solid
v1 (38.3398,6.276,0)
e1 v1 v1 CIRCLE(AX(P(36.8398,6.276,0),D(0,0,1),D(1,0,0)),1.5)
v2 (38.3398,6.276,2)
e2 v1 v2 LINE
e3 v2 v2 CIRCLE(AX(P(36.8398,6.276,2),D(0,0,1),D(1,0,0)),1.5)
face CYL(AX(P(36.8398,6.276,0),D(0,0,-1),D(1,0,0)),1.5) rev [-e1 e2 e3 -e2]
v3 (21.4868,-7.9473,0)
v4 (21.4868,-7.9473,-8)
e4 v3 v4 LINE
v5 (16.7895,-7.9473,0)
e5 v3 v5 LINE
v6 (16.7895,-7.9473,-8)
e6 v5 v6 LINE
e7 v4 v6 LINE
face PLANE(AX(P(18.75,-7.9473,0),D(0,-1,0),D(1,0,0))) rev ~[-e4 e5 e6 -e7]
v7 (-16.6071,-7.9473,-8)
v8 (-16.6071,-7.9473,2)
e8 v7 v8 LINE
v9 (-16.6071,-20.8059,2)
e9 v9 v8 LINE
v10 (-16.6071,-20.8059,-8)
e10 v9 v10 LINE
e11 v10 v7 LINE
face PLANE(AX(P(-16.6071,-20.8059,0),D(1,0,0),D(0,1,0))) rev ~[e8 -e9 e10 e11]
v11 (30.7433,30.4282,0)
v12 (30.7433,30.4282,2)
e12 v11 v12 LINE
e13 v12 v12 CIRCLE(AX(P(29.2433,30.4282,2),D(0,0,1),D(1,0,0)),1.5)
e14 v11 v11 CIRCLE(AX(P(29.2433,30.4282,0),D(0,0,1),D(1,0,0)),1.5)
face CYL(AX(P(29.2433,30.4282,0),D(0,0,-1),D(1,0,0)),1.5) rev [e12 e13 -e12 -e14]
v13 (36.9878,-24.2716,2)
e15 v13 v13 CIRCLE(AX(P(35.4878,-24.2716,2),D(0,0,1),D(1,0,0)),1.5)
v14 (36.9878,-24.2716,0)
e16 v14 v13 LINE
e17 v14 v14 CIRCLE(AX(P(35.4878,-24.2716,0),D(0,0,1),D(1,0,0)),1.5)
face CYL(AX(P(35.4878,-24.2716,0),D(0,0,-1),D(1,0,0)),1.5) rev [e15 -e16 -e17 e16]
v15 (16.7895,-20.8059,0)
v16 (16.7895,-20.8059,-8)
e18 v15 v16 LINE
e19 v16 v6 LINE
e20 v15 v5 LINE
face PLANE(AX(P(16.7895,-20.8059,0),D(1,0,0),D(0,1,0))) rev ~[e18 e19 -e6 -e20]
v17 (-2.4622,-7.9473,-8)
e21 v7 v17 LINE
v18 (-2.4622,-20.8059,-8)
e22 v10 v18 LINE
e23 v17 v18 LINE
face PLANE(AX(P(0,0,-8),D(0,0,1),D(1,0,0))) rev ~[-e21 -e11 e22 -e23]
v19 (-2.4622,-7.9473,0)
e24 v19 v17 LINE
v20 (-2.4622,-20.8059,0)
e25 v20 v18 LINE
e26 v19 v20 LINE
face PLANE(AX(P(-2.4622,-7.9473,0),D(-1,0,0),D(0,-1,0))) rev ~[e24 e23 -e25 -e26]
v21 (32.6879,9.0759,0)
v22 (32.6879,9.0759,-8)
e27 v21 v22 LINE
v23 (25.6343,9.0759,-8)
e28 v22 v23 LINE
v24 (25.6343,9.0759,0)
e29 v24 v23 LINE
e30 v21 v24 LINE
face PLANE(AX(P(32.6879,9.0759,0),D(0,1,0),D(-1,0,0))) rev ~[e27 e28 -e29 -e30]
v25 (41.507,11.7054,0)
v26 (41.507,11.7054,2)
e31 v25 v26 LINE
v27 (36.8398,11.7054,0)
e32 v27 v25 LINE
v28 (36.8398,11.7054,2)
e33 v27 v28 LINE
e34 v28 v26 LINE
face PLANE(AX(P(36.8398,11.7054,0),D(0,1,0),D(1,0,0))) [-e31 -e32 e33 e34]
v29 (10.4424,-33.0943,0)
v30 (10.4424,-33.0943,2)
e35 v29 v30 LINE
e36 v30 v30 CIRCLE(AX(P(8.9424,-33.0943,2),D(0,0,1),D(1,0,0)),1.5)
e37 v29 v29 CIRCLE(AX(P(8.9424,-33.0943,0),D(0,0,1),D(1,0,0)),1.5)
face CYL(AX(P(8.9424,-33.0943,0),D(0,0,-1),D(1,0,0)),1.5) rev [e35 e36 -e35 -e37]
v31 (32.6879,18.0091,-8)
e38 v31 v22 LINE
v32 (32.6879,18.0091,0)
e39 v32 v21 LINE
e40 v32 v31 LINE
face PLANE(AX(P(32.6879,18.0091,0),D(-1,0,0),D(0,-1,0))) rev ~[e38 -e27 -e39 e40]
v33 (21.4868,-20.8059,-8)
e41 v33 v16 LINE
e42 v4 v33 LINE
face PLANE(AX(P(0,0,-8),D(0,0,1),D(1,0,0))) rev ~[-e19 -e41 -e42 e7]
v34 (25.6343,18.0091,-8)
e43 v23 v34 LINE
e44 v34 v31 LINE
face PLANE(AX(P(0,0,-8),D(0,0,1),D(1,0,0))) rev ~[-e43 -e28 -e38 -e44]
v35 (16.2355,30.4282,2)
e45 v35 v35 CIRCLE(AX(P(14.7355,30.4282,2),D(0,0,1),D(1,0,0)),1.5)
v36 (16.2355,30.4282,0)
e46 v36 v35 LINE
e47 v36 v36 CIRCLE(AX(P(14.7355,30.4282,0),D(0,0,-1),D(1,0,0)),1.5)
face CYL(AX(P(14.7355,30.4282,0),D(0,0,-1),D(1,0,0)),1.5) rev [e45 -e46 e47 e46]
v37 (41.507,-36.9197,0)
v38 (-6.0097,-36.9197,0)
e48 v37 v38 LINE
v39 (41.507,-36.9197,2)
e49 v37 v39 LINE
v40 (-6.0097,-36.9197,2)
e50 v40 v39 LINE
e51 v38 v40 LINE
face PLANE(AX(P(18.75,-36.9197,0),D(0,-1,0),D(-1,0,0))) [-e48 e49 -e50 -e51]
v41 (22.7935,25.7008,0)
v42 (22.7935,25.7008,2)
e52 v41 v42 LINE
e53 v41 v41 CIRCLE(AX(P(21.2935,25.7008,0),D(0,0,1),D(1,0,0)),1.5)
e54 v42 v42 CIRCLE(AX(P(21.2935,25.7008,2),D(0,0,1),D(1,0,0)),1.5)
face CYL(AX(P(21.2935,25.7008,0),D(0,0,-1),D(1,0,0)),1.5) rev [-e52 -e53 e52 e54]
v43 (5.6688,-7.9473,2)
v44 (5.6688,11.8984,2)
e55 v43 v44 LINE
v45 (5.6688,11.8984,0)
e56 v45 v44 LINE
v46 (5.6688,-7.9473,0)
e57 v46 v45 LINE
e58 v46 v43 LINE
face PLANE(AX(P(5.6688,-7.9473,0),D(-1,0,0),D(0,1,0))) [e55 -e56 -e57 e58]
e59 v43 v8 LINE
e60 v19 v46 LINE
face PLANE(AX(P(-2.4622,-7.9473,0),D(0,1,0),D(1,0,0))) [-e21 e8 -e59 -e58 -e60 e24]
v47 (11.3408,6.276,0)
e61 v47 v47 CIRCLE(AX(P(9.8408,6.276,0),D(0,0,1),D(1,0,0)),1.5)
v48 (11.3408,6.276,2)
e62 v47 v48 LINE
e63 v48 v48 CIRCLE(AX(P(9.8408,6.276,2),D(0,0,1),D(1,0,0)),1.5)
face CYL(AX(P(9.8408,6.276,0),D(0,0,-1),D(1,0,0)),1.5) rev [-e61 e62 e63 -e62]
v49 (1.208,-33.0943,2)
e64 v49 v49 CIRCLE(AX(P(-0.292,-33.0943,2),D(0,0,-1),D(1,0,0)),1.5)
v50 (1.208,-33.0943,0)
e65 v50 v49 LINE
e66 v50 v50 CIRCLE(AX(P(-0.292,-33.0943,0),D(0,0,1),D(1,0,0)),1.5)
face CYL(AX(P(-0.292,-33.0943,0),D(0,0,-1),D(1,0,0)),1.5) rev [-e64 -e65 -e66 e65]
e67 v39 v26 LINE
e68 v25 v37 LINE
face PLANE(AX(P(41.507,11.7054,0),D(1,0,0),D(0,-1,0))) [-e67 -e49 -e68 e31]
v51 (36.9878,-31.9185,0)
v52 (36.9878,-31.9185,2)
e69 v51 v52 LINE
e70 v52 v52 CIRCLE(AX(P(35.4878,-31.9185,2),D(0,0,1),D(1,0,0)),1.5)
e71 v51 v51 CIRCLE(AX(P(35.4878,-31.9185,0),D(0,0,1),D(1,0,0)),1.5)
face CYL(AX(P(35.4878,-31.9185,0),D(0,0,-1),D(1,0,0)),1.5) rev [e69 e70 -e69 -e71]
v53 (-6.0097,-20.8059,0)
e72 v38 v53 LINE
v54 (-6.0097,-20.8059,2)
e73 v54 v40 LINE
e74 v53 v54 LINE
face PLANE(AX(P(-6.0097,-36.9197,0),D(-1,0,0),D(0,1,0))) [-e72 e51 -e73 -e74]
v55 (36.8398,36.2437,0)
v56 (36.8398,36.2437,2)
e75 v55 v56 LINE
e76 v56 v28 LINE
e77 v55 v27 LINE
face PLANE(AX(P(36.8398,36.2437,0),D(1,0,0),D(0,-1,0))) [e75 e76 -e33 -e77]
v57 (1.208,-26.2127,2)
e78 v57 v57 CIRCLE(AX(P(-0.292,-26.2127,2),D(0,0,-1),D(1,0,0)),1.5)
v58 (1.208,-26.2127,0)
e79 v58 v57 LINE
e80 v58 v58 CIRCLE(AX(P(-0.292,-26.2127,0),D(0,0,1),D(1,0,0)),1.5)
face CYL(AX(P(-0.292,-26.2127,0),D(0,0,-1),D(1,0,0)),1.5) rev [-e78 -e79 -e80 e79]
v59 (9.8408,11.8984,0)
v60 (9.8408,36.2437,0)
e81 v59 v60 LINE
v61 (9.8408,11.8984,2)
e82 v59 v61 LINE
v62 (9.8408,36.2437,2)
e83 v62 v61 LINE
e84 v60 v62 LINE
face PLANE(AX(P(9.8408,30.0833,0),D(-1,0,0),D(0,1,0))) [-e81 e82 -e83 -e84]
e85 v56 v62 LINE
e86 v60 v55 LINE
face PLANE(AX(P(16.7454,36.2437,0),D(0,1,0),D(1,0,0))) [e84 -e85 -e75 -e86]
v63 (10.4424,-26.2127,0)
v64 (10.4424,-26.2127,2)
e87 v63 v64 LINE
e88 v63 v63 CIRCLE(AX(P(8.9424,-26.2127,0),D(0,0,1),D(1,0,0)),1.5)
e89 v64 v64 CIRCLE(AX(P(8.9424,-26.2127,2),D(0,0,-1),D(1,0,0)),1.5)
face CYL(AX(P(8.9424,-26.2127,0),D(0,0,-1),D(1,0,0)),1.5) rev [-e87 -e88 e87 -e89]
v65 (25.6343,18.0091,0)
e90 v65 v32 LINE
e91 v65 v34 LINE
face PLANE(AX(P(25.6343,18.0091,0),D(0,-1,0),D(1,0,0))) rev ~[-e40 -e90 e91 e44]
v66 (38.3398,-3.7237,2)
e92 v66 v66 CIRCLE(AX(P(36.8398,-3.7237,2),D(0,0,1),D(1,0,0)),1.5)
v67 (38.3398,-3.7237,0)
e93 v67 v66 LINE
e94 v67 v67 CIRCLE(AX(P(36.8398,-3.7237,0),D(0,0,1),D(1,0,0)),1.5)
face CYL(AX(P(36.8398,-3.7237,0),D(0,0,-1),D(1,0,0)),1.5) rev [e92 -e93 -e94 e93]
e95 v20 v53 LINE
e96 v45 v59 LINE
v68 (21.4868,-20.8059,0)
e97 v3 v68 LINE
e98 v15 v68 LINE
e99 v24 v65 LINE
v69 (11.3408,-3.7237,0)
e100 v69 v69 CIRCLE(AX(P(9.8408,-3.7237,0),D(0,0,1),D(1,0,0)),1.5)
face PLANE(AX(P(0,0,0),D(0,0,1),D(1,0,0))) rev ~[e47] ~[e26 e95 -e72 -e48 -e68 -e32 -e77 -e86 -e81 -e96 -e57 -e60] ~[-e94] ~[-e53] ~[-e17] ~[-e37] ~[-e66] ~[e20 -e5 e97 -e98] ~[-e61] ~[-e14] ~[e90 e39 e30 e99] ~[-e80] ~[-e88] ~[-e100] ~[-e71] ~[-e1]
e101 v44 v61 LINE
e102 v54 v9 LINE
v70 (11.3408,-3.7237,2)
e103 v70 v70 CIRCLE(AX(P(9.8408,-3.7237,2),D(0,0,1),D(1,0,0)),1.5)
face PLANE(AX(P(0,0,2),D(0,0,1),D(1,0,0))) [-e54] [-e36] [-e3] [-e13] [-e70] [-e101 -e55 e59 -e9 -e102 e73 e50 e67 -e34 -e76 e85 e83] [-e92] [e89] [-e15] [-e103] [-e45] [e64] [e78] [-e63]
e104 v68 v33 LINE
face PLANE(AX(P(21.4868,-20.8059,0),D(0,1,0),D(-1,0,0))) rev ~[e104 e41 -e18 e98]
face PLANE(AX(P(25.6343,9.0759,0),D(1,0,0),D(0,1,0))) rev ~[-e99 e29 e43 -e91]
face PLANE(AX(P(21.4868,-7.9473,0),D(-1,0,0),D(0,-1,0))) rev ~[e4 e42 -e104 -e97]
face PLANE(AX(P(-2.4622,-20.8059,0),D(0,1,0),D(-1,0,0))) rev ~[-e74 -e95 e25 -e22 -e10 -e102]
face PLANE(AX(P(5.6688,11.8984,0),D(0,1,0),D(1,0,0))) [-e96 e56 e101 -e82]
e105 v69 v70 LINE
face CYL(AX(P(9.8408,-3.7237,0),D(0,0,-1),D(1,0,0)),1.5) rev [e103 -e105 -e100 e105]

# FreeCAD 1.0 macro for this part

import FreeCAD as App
import Part
import Sketcher
Q = App.Units.Quantity


def add_polygon(sketch, points):
    """Adds a closed chain of lines whose ends are joined by coincident constraints."""
    first, n = sketch.GeometryCount, len(points)
    for a, b in zip(points, points[1:] + points[:1]):
        sketch.addGeometry(Part.LineSegment(App.Vector(*a, 0), App.Vector(*b, 0)), False)
    for i in range(n):
        sketch.addConstraint(Sketcher.Constraint("Coincident", first + i, 2, first + (i + 1) % n, 1))

doc = App.newDocument("Part")
body = doc.addObject("PartDesign::Body", "Body")

sketch1 = body.newObject("Sketcher::SketchObject", "Sketch")
sketch1.AttachmentSupport = (doc.getObject("XY_Plane"), [""])
sketch1.MapMode = "FlatFace"
add_polygon(sketch1, [(9.8408, 11.8984), (5.6688, 11.8984), (5.6688, -7.9473), (-16.6071, -7.9473), (-16.6071, -20.8059), (-6.0097, -20.8059), (-6.0097, -36.9197), (41.507, -36.9197), (41.507, 11.7054), (36.8398, 11.7054), (36.8398, 36.2437), (9.8408, 36.2437)])
sketch1.addGeometry(Part.Circle(App.Vector(14.7355, 30.4282, 0), App.Vector(0, 0, 1), 1.5), False)
sketch1.addGeometry(Part.Circle(App.Vector(-0.292, -33.0943, 0), App.Vector(0, 0, 1), 1.5), False)
sketch1.addGeometry(Part.Circle(App.Vector(-0.292, -26.2127, 0), App.Vector(0, 0, 1), 1.5), False)
sketch1.addGeometry(Part.Circle(App.Vector(8.9424, -26.2127, 0), App.Vector(0, 0, 1), 1.5), False)
sketch1.addGeometry(Part.Circle(App.Vector(9.8408, -3.7237, 0), App.Vector(0, 0, 1), 1.5), False)
sketch1.addGeometry(Part.Circle(App.Vector(9.8408, 6.276, 0), App.Vector(0, 0, 1), 1.5), False)
sketch1.addGeometry(Part.Circle(App.Vector(36.8398, 6.276, 0), App.Vector(0, 0, 1), 1.5), False)
sketch1.addGeometry(Part.Circle(App.Vector(29.2433, 30.4282, 0), App.Vector(0, 0, 1), 1.5), False)
sketch1.addGeometry(Part.Circle(App.Vector(35.4878, -31.9185, 0), App.Vector(0, 0, 1), 1.5), False)
sketch1.addGeometry(Part.Circle(App.Vector(35.4878, -24.2716, 0), App.Vector(0, 0, 1), 1.5), False)
sketch1.addGeometry(Part.Circle(App.Vector(36.8398, -3.7237, 0), App.Vector(0, 0, 1), 1.5), False)
sketch1.addGeometry(Part.Circle(App.Vector(21.2935, 25.7008, 0), App.Vector(0, 0, 1), 1.5), False)
sketch1.addGeometry(Part.Circle(App.Vector(8.9424, -33.0943, 0), App.Vector(0, 0, 1), 1.5), False)
sketch1.addConstraint(Sketcher.Constraint("Horizontal", 0))
sketch1.addConstraint(Sketcher.Constraint("Vertical", 1))
sketch1.addConstraint(Sketcher.Constraint("Horizontal", 2))
sketch1.addConstraint(Sketcher.Constraint("Vertical", 3))
sketch1.addConstraint(Sketcher.Constraint("Horizontal", 4))
sketch1.addConstraint(Sketcher.Constraint("Vertical", 5))
sketch1.addConstraint(Sketcher.Constraint("Horizontal", 6))
sketch1.addConstraint(Sketcher.Constraint("Vertical", 7))
sketch1.addConstraint(Sketcher.Constraint("Horizontal", 8))
sketch1.addConstraint(Sketcher.Constraint("Vertical", 9))
sketch1.addConstraint(Sketcher.Constraint("Horizontal", 10))
sketch1.addConstraint(Sketcher.Constraint("Vertical", 11))
sketch1.addConstraint(Sketcher.Constraint("Equal", 12, 13))
sketch1.addConstraint(Sketcher.Constraint("Equal", 13, 14))
sketch1.addConstraint(Sketcher.Constraint("Equal", 14, 15))
sketch1.addConstraint(Sketcher.Constraint("Equal", 15, 16))
sketch1.addConstraint(Sketcher.Constraint("Equal", 16, 17))
sketch1.addConstraint(Sketcher.Constraint("Equal", 17, 18))
sketch1.addConstraint(Sketcher.Constraint("Equal", 18, 19))
sketch1.addConstraint(Sketcher.Constraint("Equal", 19, 20))
sketch1.addConstraint(Sketcher.Constraint("Equal", 20, 21))
sketch1.addConstraint(Sketcher.Constraint("Equal", 21, 22))
sketch1.addConstraint(Sketcher.Constraint("Equal", 22, 23))
sketch1.addConstraint(Sketcher.Constraint("Equal", 23, 24))
sketch1.addConstraint(Sketcher.Constraint("Horizontal", 14, 3, 15, 3))
sketch1.addConstraint(Sketcher.Constraint("Horizontal", 17, 3, 18, 3))
sketch1.addConstraint(Sketcher.Constraint("Horizontal", 12, 3, 19, 3))
sketch1.addConstraint(Sketcher.Constraint("Horizontal", 16, 3, 22, 3))
sketch1.addConstraint(Sketcher.Constraint("Horizontal", 13, 3, 24, 3))
sketch1.addConstraint(Sketcher.Constraint("Vertical", 13, 3, 14, 3))
sketch1.addConstraint(Sketcher.Constraint("Vertical", 16, 3, 17, 3))
sketch1.addConstraint(Sketcher.Constraint("Vertical", 20, 3, 21, 3))
sketch1.addConstraint(Sketcher.Constraint("Vertical", 18, 3, 22, 3))
sketch1.addConstraint(Sketcher.Constraint("Vertical", 15, 3, 24, 3))
sketch1.addConstraint(Sketcher.Constraint("Vertical", 22, 3, 8, 2))
sketch1.addConstraint(Sketcher.Constraint("Vertical", 17, 3, 10, 2))
sketch1.addConstraint(Sketcher.Constraint("Diameter", 12, Q("3 mm")))
sketch1.addConstraint(Sketcher.Constraint("DistanceX", 0, 2, 0, 1, Q("4.172 mm")))
sketch1.addConstraint(Sketcher.Constraint("DistanceX", 2, 2, 2, 1, Q("22.276 mm")))
sketch1.addConstraint(Sketcher.Constraint("DistanceX", 10, 2, 10, 1, Q("26.999 mm")))
sketch1.addConstraint(Sketcher.Constraint("DistanceY", 7, 1, 7, 2, Q("48.625 mm")))
sketch1.addConstraint(Sketcher.Constraint("DistanceX", 4, 1, 4, 2, Q("10.5974 mm")))
sketch1.addConstraint(Sketcher.Constraint("DistanceX", 6, 1, 6, 2, Q("47.5167 mm")))
sketch1.addConstraint(Sketcher.Constraint("DistanceY", 1, 2, 1, 1, Q("19.8457 mm")))
sketch1.addConstraint(Sketcher.Constraint("DistanceY", 3, 2, 3, 1, Q("12.8586 mm")))
sketch1.addConstraint(Sketcher.Constraint("DistanceY", 5, 2, 5, 1, Q("16.1138 mm")))
sketch1.addConstraint(Sketcher.Constraint("DistanceY", 9, 1, 9, 2, Q("24.5383 mm")))
sketch1.addConstraint(Sketcher.Constraint("DistanceX", 13, 3, -1, 1, Q("0.292 mm")))
sketch1.addConstraint(Sketcher.Constraint("DistanceY", -1, 1, 17, 3, Q("6.276 mm")))
sketch1.addConstraint(Sketcher.Constraint("DistanceX", 2, 2, -1, 1, Q("16.607 mm")))
sketch1.addConstraint(Sketcher.Constraint("DistanceY", 3, 2, -1, 1, Q("20.806 mm")))
sketch1.addConstraint(Sketcher.Constraint("DistanceY", 14, 3, 12, 3, Q("56.641 mm")))
sketch1.addConstraint(Sketcher.Constraint("DistanceX", 15, 3, 12, 3, Q("5.793 mm")))
sketch1.addConstraint(Sketcher.Constraint("DistanceY", 15, 3, 16, 3, Q("22.489 mm")))
sketch1.addConstraint(Sketcher.Constraint("DistanceX", 15, 3, 19, 3, Q("20.301 mm")))
sketch1.addConstraint(Sketcher.Constraint("DistanceX", 16, 3, 20, 3, Q("25.647 mm")))
sketch1.addConstraint(Sketcher.Constraint("DistanceY", 20, 3, 21, 3, Q("7.647 mm")))
sketch1.addConstraint(Sketcher.Constraint("DistanceY", 15, 3, 21, 3, Q("1.941 mm")))
sketch1.addConstraint(Sketcher.Constraint("DistanceX", 12, 3, 23, 3, Q("6.558 mm")))
sketch1.addConstraint(Sketcher.Constraint("DistanceY", 16, 3, 0, 2, Q("15.622 mm")))
sketch1.addConstraint(Sketcher.Constraint("DistanceY", 13, 3, 2, 2, Q("25.147 mm")))
sketch1.addConstraint(Sketcher.Constraint("DistanceX", 4, 2, 15, 3, Q("14.952 mm")))
sketch1.addConstraint(Sketcher.Constraint("DistanceY", 23, 3, 9, 2, Q("10.543 mm")))
pad1 = body.newObject("PartDesign::Pad", "Pad")
pad1.Profile = sketch1
pad1.Length = 2

sketch2 = body.newObject("Sketcher::SketchObject", "Sketch001")
sketch2.AttachmentSupport = (doc.getObject("XY_Plane"), [""])
sketch2.MapMode = "FlatFace"
add_polygon(sketch2, [(-2.4622, -20.8059), (-2.4622, -7.9473), (-16.6071, -7.9473), (-16.6071, -20.8059)])
add_polygon(sketch2, [(21.4868, -7.9473), (16.7895, -7.9473), (16.7895, -20.8059), (21.4868, -20.8059)])
add_polygon(sketch2, [(32.6879, 18.0091), (25.6343, 18.0091), (25.6343, 9.0759), (32.6879, 9.0759)])
sketch2.addConstraint(Sketcher.Constraint("Vertical", 0))
sketch2.addConstraint(Sketcher.Constraint("Horizontal", 1))
sketch2.addConstraint(Sketcher.Constraint("Vertical", 2))
sketch2.addConstraint(Sketcher.Constraint("Horizontal", 3))
sketch2.addConstraint(Sketcher.Constraint("Horizontal", 4))
sketch2.addConstraint(Sketcher.Constraint("Vertical", 5))
sketch2.addConstraint(Sketcher.Constraint("Horizontal", 6))
sketch2.addConstraint(Sketcher.Constraint("Vertical", 7))
sketch2.addConstraint(Sketcher.Constraint("Horizontal", 8))
sketch2.addConstraint(Sketcher.Constraint("Vertical", 9))
sketch2.addConstraint(Sketcher.Constraint("Horizontal", 10))
sketch2.addConstraint(Sketcher.Constraint("Vertical", 11))
sketch2.addConstraint(Sketcher.Constraint("Horizontal", 1, 2, 4, 2))
sketch2.addConstraint(Sketcher.Constraint("Horizontal", 3, 2, 5, 2))
sketch2.addConstraint(Sketcher.Constraint("DistanceX", 1, 2, 1, 1, Q("14.145 mm")))
sketch2.addConstraint(Sketcher.Constraint("DistanceX", 4, 2, 4, 1, Q("4.6973 mm")))
sketch2.addConstraint(Sketcher.Constraint("DistanceX", 8, 2, 8, 1, Q("7.0536 mm")))
sketch2.addConstraint(Sketcher.Constraint("DistanceY", 0, 1, 0, 2, Q("12.8586 mm")))
sketch2.addConstraint(Sketcher.Constraint("DistanceY", 9, 2, 9, 1, Q("8.9332 mm")))
sketch2.addConstraint(Sketcher.Constraint("DistanceX", 1, 2, -1, 1, Q("16.607 mm")))
sketch2.addConstraint(Sketcher.Constraint("DistanceY", 2, 2, -1, 1, Q("20.806 mm")))
sketch2.addConstraint(Sketcher.Constraint("DistanceY", -1, 1, 8, 2, Q("18.009 mm")))
sketch2.addConstraint(Sketcher.Constraint("DistanceX", -1, 1, 10, 2, Q("32.688 mm")))
sketch2.addConstraint(Sketcher.Constraint("DistanceX", 3, 2, 6, 2, Q("23.949 mm")))
pad2 = body.newObject("PartDesign::Pad", "Pad001")
pad2.Profile = sketch2
pad2.Length = 8
pad2.Reversed = True

doc.recompute()
